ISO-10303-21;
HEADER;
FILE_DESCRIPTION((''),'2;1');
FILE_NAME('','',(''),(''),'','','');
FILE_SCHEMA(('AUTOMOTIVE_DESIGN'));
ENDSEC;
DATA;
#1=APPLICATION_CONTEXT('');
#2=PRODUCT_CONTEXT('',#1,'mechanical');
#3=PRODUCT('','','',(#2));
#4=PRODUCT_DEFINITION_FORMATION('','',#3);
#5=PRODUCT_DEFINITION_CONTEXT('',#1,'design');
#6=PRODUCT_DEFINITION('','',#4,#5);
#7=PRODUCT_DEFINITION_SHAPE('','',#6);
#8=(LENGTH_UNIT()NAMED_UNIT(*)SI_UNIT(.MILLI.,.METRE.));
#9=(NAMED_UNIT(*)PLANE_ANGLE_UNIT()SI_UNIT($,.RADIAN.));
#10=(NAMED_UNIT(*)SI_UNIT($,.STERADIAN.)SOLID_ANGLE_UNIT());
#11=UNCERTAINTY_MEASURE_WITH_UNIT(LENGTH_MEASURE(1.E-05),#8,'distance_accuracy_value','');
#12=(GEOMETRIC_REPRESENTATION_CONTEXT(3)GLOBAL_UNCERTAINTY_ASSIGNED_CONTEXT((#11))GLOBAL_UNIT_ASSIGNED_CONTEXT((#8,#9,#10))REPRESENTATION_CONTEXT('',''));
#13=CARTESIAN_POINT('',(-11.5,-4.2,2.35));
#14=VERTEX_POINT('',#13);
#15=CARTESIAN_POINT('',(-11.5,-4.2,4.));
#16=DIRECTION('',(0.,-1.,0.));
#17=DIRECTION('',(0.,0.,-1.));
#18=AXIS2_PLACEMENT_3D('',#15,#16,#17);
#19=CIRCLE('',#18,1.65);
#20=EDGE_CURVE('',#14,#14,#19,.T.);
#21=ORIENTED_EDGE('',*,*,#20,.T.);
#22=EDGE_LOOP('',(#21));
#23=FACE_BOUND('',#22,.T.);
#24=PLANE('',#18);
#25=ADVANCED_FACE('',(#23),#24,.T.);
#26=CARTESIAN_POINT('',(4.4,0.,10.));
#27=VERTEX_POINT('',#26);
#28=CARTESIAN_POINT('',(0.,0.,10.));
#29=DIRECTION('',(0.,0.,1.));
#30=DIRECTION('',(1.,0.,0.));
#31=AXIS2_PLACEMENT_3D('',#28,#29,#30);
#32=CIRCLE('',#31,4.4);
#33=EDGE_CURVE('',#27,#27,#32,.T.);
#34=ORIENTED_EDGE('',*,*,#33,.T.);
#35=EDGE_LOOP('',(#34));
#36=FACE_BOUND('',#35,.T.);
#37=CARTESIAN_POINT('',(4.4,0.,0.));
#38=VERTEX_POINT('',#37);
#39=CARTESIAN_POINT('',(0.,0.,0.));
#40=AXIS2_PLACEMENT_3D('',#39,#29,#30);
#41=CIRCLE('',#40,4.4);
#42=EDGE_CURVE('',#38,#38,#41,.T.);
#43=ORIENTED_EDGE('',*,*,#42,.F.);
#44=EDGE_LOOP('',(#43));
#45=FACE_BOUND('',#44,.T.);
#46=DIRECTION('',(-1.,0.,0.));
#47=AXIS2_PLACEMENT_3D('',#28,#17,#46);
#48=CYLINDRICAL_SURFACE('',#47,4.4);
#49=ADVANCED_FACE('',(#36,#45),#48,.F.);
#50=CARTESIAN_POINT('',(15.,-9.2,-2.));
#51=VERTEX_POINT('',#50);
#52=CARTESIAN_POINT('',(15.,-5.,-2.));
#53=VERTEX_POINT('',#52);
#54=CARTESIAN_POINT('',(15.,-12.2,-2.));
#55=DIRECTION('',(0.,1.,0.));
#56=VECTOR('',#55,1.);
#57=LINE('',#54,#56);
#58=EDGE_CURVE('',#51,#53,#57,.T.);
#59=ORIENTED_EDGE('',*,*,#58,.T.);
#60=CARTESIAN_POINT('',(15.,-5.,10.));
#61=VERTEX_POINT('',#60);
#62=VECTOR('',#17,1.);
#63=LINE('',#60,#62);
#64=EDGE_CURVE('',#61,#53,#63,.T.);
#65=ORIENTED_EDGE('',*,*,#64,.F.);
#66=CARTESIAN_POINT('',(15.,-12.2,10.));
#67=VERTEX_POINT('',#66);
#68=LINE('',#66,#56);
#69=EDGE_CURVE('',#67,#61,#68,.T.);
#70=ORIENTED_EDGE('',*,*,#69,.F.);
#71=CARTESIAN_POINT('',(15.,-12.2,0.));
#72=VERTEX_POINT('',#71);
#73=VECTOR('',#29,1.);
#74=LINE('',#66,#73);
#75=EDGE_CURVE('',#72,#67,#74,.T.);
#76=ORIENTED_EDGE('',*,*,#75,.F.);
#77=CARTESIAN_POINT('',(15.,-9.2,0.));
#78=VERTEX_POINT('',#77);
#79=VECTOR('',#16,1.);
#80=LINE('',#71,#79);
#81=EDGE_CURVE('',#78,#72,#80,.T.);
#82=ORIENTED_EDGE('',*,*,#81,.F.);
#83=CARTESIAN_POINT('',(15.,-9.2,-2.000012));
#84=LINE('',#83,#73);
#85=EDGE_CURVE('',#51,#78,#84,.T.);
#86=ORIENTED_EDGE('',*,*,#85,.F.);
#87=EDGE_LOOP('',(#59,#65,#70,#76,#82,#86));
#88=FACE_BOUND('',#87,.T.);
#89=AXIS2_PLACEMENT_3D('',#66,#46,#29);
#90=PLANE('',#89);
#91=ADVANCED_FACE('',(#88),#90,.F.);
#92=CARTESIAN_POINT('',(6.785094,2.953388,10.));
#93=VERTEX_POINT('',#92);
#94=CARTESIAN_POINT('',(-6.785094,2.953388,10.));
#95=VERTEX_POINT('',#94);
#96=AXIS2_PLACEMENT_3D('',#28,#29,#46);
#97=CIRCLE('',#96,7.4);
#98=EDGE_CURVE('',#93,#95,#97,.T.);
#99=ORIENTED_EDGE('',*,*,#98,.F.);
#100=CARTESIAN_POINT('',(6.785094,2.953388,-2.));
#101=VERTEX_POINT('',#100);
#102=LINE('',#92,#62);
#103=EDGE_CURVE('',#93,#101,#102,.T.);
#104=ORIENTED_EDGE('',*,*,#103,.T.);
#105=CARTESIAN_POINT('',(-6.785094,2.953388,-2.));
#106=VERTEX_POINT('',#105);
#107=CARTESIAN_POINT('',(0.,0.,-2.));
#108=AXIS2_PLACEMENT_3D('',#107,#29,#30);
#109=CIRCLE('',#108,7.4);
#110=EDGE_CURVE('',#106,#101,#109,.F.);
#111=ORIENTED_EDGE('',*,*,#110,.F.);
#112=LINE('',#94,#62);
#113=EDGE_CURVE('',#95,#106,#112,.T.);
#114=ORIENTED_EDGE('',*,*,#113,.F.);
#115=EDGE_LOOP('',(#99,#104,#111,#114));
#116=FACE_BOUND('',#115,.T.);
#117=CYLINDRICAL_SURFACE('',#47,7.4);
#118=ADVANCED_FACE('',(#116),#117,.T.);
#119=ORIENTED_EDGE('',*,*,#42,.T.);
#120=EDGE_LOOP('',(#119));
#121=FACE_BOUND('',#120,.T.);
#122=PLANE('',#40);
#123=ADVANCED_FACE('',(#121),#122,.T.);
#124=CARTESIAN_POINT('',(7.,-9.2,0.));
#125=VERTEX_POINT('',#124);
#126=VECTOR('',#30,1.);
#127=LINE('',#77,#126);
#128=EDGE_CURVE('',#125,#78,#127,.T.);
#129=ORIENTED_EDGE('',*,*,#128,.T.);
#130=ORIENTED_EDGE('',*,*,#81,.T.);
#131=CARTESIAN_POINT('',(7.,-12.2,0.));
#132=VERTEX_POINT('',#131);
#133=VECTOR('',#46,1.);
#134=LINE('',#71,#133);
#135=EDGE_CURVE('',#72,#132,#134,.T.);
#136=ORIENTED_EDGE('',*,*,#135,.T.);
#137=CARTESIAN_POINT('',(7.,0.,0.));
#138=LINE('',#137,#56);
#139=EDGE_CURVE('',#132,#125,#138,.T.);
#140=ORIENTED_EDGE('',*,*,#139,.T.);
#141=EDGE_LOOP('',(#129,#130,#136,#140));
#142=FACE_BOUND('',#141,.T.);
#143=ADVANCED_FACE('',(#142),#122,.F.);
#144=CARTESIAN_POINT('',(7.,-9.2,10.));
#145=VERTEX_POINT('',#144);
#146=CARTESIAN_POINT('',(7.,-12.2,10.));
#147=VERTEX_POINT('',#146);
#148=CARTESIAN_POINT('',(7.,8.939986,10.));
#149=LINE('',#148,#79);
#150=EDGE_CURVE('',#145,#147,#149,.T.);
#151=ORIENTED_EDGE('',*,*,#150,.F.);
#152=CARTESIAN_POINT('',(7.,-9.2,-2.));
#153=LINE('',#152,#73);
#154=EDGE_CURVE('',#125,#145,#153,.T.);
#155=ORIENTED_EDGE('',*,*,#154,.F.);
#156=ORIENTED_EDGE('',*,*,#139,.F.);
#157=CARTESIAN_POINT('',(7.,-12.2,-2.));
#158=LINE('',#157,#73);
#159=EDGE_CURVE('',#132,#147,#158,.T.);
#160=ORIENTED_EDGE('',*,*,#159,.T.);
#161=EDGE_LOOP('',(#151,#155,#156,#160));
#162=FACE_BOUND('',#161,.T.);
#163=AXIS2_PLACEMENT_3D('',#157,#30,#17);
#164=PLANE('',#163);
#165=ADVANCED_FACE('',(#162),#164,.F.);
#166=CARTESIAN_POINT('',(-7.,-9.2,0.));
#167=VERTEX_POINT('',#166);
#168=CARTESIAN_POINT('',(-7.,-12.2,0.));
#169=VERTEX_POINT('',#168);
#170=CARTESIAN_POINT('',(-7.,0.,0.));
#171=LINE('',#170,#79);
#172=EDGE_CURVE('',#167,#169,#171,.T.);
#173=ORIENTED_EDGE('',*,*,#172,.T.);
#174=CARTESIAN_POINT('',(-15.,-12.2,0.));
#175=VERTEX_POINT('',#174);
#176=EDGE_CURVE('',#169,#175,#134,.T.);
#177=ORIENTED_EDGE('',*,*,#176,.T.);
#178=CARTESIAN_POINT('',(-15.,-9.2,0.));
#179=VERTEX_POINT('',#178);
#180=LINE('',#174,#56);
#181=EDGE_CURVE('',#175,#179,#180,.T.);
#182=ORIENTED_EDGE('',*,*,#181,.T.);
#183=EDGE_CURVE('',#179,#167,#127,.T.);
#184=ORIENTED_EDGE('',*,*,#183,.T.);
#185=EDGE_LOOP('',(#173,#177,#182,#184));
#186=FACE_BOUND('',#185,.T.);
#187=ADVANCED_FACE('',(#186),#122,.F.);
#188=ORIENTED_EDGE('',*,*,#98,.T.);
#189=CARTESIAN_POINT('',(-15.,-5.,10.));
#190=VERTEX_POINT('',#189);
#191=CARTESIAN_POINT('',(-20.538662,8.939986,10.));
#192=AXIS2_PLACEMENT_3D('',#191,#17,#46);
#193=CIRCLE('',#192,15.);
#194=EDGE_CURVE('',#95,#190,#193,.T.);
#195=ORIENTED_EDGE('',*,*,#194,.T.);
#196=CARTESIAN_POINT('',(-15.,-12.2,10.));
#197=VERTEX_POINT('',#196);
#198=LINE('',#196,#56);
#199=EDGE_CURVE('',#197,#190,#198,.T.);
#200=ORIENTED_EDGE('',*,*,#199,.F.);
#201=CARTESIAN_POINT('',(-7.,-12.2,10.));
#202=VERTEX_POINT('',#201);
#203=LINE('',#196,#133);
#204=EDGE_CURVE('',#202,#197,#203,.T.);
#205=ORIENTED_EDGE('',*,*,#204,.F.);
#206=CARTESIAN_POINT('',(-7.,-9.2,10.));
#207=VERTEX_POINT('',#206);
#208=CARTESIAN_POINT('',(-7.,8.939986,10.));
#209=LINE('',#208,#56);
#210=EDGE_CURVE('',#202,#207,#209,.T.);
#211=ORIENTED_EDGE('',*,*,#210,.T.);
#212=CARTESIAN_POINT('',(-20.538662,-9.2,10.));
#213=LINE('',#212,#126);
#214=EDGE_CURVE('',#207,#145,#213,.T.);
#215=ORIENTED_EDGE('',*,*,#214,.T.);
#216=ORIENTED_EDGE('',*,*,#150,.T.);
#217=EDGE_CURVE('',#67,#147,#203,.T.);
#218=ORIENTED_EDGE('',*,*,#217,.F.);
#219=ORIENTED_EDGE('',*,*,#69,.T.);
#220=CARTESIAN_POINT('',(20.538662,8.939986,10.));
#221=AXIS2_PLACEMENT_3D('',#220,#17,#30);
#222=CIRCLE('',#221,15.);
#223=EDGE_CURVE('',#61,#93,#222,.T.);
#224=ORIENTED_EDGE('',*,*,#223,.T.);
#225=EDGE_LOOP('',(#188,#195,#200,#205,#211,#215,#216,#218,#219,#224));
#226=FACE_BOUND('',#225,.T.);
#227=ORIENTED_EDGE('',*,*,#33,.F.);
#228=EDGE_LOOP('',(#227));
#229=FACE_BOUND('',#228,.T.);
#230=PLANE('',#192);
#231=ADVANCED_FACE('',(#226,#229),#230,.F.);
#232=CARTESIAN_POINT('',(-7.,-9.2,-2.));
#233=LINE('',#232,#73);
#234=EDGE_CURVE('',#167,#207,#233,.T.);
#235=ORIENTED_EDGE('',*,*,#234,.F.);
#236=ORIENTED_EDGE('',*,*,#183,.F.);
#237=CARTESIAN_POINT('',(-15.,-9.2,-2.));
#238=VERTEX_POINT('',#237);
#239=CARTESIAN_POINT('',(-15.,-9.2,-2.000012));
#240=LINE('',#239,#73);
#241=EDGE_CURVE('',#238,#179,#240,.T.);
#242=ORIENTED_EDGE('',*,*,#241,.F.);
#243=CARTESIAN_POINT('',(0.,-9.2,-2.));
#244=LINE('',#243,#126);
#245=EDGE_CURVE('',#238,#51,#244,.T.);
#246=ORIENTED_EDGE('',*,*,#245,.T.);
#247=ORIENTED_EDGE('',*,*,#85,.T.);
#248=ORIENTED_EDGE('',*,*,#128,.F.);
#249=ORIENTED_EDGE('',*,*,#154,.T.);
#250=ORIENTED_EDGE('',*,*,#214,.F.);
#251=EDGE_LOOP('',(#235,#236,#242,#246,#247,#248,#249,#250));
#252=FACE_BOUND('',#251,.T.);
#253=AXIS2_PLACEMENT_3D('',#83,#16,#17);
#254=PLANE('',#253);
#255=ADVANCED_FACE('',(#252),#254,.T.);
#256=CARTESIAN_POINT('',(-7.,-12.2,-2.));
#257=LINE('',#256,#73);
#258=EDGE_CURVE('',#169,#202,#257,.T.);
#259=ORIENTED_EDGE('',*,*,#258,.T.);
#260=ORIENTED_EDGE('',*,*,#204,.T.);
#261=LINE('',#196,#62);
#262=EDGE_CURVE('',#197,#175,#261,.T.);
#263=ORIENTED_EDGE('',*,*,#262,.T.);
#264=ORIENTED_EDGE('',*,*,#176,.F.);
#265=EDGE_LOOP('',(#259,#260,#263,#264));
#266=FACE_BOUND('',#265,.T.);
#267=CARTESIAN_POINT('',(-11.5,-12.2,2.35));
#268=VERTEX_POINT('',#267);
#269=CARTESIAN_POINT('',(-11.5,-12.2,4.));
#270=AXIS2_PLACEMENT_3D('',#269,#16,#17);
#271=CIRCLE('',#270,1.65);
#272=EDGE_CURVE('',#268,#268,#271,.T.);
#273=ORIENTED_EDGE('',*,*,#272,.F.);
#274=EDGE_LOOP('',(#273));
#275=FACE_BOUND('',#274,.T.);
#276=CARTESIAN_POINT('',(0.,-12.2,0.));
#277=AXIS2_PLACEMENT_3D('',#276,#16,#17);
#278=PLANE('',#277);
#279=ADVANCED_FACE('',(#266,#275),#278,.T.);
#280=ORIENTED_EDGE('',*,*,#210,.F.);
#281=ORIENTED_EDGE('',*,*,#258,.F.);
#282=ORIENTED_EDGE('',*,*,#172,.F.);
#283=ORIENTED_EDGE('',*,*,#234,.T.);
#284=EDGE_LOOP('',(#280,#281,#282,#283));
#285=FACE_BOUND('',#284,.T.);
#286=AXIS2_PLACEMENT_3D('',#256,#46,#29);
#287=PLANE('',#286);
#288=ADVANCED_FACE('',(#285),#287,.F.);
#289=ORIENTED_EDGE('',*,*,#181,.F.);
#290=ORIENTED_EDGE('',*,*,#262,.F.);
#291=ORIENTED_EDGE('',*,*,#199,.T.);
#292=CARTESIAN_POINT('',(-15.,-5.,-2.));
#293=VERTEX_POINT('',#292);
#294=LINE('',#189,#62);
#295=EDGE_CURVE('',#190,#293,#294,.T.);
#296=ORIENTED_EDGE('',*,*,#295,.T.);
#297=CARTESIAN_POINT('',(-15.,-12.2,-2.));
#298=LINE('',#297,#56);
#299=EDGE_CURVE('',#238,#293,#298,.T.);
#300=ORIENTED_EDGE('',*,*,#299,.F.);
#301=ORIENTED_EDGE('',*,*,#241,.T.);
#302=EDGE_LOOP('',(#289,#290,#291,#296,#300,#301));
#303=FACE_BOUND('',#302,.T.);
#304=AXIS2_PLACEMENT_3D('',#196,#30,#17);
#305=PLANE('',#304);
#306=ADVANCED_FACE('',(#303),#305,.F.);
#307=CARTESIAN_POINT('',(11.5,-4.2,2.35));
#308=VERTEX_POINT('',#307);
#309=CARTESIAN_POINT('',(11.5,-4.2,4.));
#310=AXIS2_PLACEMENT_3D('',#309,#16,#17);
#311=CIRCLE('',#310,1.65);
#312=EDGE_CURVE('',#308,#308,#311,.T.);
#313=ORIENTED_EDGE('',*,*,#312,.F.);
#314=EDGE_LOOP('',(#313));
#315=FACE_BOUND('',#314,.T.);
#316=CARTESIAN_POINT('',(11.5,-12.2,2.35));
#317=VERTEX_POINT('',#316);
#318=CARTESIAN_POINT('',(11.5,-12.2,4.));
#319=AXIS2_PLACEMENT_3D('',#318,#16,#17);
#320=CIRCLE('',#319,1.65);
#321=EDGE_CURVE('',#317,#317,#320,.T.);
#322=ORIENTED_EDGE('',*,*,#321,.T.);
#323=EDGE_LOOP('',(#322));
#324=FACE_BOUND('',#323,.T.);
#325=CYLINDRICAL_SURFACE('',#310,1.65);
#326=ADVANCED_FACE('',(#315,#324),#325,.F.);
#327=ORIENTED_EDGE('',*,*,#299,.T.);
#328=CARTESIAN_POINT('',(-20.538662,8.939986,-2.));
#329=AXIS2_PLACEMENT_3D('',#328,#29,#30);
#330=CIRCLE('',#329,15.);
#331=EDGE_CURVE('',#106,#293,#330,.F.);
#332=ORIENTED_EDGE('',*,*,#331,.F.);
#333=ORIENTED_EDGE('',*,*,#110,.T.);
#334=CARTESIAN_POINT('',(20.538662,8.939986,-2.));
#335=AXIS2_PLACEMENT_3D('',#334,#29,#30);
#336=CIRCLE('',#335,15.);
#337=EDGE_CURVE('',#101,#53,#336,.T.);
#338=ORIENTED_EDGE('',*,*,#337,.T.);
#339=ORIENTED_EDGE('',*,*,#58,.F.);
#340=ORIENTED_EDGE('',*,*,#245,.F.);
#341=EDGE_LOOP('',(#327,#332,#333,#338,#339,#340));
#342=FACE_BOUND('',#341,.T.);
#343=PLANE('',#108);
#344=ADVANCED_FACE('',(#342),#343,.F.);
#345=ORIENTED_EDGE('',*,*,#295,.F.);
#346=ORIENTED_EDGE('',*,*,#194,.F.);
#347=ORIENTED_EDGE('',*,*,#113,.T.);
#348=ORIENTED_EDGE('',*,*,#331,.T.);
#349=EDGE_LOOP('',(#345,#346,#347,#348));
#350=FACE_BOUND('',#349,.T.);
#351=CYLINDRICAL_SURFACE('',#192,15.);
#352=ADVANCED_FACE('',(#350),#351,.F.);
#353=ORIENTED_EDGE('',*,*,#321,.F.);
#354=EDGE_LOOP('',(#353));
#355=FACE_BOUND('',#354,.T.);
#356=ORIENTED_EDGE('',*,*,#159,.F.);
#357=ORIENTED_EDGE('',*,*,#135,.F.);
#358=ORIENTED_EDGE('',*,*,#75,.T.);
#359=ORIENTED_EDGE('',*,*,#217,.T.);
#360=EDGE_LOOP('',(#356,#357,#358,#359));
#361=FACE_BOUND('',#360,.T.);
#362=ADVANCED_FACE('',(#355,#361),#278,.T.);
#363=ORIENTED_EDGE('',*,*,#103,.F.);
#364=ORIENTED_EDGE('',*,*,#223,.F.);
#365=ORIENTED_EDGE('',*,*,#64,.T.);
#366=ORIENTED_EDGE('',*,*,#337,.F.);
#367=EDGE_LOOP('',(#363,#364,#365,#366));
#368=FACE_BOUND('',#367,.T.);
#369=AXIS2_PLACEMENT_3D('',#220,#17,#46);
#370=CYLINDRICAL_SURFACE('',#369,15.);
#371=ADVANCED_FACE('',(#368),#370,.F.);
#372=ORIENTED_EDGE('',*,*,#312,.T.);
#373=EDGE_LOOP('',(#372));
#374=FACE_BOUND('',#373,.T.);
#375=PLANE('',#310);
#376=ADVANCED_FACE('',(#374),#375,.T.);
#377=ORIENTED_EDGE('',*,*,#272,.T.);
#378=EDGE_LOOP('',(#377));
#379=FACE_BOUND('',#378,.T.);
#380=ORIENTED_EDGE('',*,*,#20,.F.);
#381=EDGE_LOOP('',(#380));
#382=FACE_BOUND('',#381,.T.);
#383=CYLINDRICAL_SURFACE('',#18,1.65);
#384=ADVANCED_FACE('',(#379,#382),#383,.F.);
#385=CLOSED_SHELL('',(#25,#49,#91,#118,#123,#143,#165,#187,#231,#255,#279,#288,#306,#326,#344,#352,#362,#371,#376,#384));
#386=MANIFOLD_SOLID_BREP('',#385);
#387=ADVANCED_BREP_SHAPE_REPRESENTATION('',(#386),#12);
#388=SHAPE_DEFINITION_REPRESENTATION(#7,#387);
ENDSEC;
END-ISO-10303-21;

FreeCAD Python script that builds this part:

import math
import FreeCAD as App
import Part
import Sketcher
from FreeCAD import Vector
Q = App.Units.Quantity


def add_polygon(sketch, points):
    """Adds a closed chain of lines whose ends are joined by coincident constraints."""
    first, n = sketch.GeometryCount, len(points)
    for a, b in zip(points, points[1:] + points[:1]):
        sketch.addGeometry(Part.LineSegment(App.Vector(*a, 0), App.Vector(*b, 0)), False)
    for i in range(n):
        sketch.addConstraint(Sketcher.Constraint("Coincident", first + i, 2, first + (i + 1) % n, 1))

doc = App.newDocument("Part")
body = doc.addObject("PartDesign::Body", "Body")

# Sketch on XY plane
sketch1 = body.newObject("Sketcher::SketchObject", "Sketch")
sketch1.AttachmentSupport = (doc.getObject("XY_Plane"), [""])
sketch1.MapMode = "FlatFace"
sketch1.addGeometry([
    Part.LineSegment(Vector(-15, -5, 0), Vector(15, -5, 0)),  # 0
    Part.ArcOfCircle(Part.Circle(Vector(20.5, 8.9, 0), Vector(0, 0, 1), 15), math.radians(-156), math.radians(-112)),  # 1
    Part.ArcOfCircle(Part.Circle(Vector(0, 0, 0), Vector(0, 0, 1), 7.4), math.radians(24), math.radians(156)),  # 2
    Part.ArcOfCircle(Part.Circle(Vector(-20.5, 8.9, 0), Vector(0, 0, 1), 15), math.radians(-68), math.radians(-24)),  # 3
    Part.Circle(Vector(0, 0, 0), Vector(0, 0, 1), 4.4),  # 4
], False)
sketch1.addConstraint([
    Sketcher.Constraint("Coincident", 0, 2, 1, 2),
    Sketcher.Constraint("Tangent", 1, 1, 2, 1),
    Sketcher.Constraint("Tangent", 2, 2, 3, 2),
    Sketcher.Constraint("Coincident", 3, 1, 0, 1),
    Sketcher.Constraint("Horizontal", 0),
    Sketcher.Constraint("Coincident", 2, 3, -1, 1),
    Sketcher.Constraint("Coincident", 4, 3, -1, 1),
    Sketcher.Constraint("Equal", 1, 3),
    Sketcher.Constraint("Horizontal", 1, 3, 3, 3),
    Sketcher.Constraint("Radius", 1, Q("15 mm")),
    Sketcher.Constraint("Diameter", 4, Q("8.8 mm")),
    Sketcher.Constraint("Radius", 2, Q("7.4 mm")),
    Sketcher.Constraint("DistanceX", 0, 1, 0, 2, Q("30 mm")),
    Sketcher.Constraint("DistanceY", 0, 2, -1, 1, Q("5 mm")),
])
pad1 = body.newObject("PartDesign::Pad", "Pad")
pad1.Profile = sketch1
pad1.Length = 10

# Sketch on XY plane
sketch2 = body.newObject("Sketcher::SketchObject", "Sketch001")
sketch2.AttachmentSupport = (doc.getObject("XY_Plane"), [""])
sketch2.MapMode = "FlatFace"
sketch2.addGeometry([
    Part.ArcOfCircle(Part.Circle(Vector(0, 0, 0), Vector(0, 0, 1), 7), math.radians(24), math.radians(156)),
    Part.ArcOfCircle(Part.Circle(Vector(-21, 9, 0), Vector(0, 0, 1), 15), math.radians(-68), math.radians(-24)),
    Part.LineSegment(Vector(-15, -5, 0), Vector(15, -5, 0)),
    Part.ArcOfCircle(Part.Circle(Vector(21, 9, 0), Vector(0, 0, 1), 15), math.radians(-156), math.radians(-112)),
], False)
sketch2.addConstraint([
    Sketcher.Constraint("Tangent", 0, 2, 1, 2),
    Sketcher.Constraint("Coincident", 1, 1, 2, 1),
    Sketcher.Constraint("Coincident", 2, 2, 3, 2),
    Sketcher.Constraint("Tangent", 3, 1, 0, 1),
    Sketcher.Constraint("Horizontal", 2),
    Sketcher.Constraint("Coincident", 0, 3, -1, 1),
    Sketcher.Constraint("Equal", 1, 3),
    Sketcher.Constraint("Horizontal", 1, 3, 3, 3),
    Sketcher.Constraint("Radius", 1, Q("15 mm")),
    Sketcher.Constraint("Radius", 0, Q("7.4 mm")),
    Sketcher.Constraint("DistanceX", 2, 1, 2, 2, Q("30 mm")),
    Sketcher.Constraint("DistanceY", 1, 1, -1, 1, Q("5 mm")),
])
pad2 = body.newObject("PartDesign::Pad", "Pad001")
pad2.Profile = sketch2
pad2.Length = 2
pad2.Reversed = True

# Sketch on XZ plane
sketch3 = body.newObject("Sketcher::SketchObject", "Sketch002")
sketch3.AttachmentSupport = (doc.getObject("XZ_Plane"), [""])
sketch3.MapMode = "FlatFace"
sketch3.AttachmentOffset = App.Placement(Vector(0, 0, 5), App.Rotation())
add_polygon(sketch3, [(-15, 10), (-15, -2), (15, -2), (15, 10)])  # lines 0-3
sketch3.addConstraint([
    Sketcher.Constraint("Vertical", 0),
    Sketcher.Constraint("Horizontal", 1),
    Sketcher.Constraint("Vertical", 2),
    Sketcher.Constraint("Horizontal", 3),
    Sketcher.Constraint("DistanceX", 1, 1, 1, 2, Q("30 mm")),
    Sketcher.Constraint("DistanceY", 0, 2, 0, 1, Q("12 mm")),
    Sketcher.Constraint("DistanceX", 0, 2, -1, 1, Q("15 mm")),
    Sketcher.Constraint("DistanceY", 0, 2, -1, 1, Q("2 mm")),
])
pad3 = body.newObject("PartDesign::Pad", "Pad002")
pad3.Profile = sketch3
pad3.Length = 7.2

# Sketch on XZ plane
sketch4 = body.newObject("Sketcher::SketchObject", "Sketch003")
sketch4.AttachmentSupport = (doc.getObject("XZ_Plane"), [""])
sketch4.MapMode = "FlatFace"
sketch4.AttachmentOffset = App.Placement(Vector(0, 0, 12.2), App.Rotation())
sketch4.addGeometry([
    Part.Circle(Vector(-11.5, 4, 0), Vector(0, 0, 1), 1.6),
    Part.Circle(Vector(11.5, 4, 0), Vector(0, 0, 1), 1.6),
], False)
sketch4.addConstraint([
    Sketcher.Constraint("Equal", 0, 1),
    Sketcher.Constraint("Symmetric", 0, 3, 1, 3, -2),
    Sketcher.Constraint("Diameter", 0, Q("3.3 mm")),
    Sketcher.Constraint("DistanceY", -1, 1, 0, 3, Q("4 mm")),
    Sketcher.Constraint("DistanceX", 0, 3, 1, 3, Q("23 mm")),
])
pocket1 = body.newObject("PartDesign::Pocket", "Pocket")
pocket1.Profile = sketch4
pocket1.Length = 8

# Sketch on XY plane
sketch5 = body.newObject("Sketcher::SketchObject", "Sketch004")
sketch5.AttachmentSupport = (doc.getObject("XY_Plane"), [""])
sketch5.MapMode = "FlatFace"
sketch5.AttachmentOffset = App.Placement(Vector(0, 0, -2), App.Rotation())
add_polygon(sketch5, [(15, -9.2), (15, -12.2), (-15, -12.2), (-15, -9.2)])  # lines 0-3
sketch5.addConstraint([
    Sketcher.Constraint("Vertical", 0),
    Sketcher.Constraint("Horizontal", 1),
    Sketcher.Constraint("Vertical", 2),
    Sketcher.Constraint("Horizontal", 3),
    Sketcher.Constraint("DistanceX", 1, 2, 1, 1, Q("30 mm")),
    Sketcher.Constraint("DistanceY", 0, 2, 0, 1, Q("3 mm")),
    Sketcher.Constraint("DistanceX", -1, 1, 0, 2, Q("15 mm")),
    Sketcher.Constraint("DistanceY", 0, 2, -1, 1, Q("12.2 mm")),
])
pocket2 = body.newObject("PartDesign::Pocket", "Pocket001")
pocket2.Profile = sketch5
pocket2.Type = "TwoLengths"
pocket2.Length = 23.756098
pocket2.Length2 = 2

# Sketch on XY plane
sketch6 = body.newObject("Sketcher::SketchObject", "Sketch005")
sketch6.AttachmentSupport = (doc.getObject("XY_Plane"), [""])
sketch6.MapMode = "FlatFace"
sketch6.AttachmentOffset = App.Placement(Vector(0, 0, 10), App.Rotation())
add_polygon(sketch6, [(-7, -9.2), (-7, -12.2), (7, -12.2), (7, -9.2)])  # lines 0-3
sketch6.addConstraint([
    Sketcher.Constraint("Vertical", 0),
    Sketcher.Constraint("Horizontal", 1),
    Sketcher.Constraint("Vertical", 2),
    Sketcher.Constraint("Horizontal", 3),
    Sketcher.Constraint("DistanceX", 1, 1, 1, 2, Q("14 mm")),
    Sketcher.Constraint("DistanceY", 0, 2, 0, 1, Q("3 mm")),
    Sketcher.Constraint("DistanceX", 0, 2, -1, 1, Q("7 mm")),
    Sketcher.Constraint("DistanceY", 0, 2, -1, 1, Q("12.2 mm")),
])
pocket3 = body.newObject("PartDesign::Pocket", "Pocket002")
pocket3.Profile = sketch6
pocket3.Type = "ThroughAll"
pocket3.Midplane = True

doc.recompute()
